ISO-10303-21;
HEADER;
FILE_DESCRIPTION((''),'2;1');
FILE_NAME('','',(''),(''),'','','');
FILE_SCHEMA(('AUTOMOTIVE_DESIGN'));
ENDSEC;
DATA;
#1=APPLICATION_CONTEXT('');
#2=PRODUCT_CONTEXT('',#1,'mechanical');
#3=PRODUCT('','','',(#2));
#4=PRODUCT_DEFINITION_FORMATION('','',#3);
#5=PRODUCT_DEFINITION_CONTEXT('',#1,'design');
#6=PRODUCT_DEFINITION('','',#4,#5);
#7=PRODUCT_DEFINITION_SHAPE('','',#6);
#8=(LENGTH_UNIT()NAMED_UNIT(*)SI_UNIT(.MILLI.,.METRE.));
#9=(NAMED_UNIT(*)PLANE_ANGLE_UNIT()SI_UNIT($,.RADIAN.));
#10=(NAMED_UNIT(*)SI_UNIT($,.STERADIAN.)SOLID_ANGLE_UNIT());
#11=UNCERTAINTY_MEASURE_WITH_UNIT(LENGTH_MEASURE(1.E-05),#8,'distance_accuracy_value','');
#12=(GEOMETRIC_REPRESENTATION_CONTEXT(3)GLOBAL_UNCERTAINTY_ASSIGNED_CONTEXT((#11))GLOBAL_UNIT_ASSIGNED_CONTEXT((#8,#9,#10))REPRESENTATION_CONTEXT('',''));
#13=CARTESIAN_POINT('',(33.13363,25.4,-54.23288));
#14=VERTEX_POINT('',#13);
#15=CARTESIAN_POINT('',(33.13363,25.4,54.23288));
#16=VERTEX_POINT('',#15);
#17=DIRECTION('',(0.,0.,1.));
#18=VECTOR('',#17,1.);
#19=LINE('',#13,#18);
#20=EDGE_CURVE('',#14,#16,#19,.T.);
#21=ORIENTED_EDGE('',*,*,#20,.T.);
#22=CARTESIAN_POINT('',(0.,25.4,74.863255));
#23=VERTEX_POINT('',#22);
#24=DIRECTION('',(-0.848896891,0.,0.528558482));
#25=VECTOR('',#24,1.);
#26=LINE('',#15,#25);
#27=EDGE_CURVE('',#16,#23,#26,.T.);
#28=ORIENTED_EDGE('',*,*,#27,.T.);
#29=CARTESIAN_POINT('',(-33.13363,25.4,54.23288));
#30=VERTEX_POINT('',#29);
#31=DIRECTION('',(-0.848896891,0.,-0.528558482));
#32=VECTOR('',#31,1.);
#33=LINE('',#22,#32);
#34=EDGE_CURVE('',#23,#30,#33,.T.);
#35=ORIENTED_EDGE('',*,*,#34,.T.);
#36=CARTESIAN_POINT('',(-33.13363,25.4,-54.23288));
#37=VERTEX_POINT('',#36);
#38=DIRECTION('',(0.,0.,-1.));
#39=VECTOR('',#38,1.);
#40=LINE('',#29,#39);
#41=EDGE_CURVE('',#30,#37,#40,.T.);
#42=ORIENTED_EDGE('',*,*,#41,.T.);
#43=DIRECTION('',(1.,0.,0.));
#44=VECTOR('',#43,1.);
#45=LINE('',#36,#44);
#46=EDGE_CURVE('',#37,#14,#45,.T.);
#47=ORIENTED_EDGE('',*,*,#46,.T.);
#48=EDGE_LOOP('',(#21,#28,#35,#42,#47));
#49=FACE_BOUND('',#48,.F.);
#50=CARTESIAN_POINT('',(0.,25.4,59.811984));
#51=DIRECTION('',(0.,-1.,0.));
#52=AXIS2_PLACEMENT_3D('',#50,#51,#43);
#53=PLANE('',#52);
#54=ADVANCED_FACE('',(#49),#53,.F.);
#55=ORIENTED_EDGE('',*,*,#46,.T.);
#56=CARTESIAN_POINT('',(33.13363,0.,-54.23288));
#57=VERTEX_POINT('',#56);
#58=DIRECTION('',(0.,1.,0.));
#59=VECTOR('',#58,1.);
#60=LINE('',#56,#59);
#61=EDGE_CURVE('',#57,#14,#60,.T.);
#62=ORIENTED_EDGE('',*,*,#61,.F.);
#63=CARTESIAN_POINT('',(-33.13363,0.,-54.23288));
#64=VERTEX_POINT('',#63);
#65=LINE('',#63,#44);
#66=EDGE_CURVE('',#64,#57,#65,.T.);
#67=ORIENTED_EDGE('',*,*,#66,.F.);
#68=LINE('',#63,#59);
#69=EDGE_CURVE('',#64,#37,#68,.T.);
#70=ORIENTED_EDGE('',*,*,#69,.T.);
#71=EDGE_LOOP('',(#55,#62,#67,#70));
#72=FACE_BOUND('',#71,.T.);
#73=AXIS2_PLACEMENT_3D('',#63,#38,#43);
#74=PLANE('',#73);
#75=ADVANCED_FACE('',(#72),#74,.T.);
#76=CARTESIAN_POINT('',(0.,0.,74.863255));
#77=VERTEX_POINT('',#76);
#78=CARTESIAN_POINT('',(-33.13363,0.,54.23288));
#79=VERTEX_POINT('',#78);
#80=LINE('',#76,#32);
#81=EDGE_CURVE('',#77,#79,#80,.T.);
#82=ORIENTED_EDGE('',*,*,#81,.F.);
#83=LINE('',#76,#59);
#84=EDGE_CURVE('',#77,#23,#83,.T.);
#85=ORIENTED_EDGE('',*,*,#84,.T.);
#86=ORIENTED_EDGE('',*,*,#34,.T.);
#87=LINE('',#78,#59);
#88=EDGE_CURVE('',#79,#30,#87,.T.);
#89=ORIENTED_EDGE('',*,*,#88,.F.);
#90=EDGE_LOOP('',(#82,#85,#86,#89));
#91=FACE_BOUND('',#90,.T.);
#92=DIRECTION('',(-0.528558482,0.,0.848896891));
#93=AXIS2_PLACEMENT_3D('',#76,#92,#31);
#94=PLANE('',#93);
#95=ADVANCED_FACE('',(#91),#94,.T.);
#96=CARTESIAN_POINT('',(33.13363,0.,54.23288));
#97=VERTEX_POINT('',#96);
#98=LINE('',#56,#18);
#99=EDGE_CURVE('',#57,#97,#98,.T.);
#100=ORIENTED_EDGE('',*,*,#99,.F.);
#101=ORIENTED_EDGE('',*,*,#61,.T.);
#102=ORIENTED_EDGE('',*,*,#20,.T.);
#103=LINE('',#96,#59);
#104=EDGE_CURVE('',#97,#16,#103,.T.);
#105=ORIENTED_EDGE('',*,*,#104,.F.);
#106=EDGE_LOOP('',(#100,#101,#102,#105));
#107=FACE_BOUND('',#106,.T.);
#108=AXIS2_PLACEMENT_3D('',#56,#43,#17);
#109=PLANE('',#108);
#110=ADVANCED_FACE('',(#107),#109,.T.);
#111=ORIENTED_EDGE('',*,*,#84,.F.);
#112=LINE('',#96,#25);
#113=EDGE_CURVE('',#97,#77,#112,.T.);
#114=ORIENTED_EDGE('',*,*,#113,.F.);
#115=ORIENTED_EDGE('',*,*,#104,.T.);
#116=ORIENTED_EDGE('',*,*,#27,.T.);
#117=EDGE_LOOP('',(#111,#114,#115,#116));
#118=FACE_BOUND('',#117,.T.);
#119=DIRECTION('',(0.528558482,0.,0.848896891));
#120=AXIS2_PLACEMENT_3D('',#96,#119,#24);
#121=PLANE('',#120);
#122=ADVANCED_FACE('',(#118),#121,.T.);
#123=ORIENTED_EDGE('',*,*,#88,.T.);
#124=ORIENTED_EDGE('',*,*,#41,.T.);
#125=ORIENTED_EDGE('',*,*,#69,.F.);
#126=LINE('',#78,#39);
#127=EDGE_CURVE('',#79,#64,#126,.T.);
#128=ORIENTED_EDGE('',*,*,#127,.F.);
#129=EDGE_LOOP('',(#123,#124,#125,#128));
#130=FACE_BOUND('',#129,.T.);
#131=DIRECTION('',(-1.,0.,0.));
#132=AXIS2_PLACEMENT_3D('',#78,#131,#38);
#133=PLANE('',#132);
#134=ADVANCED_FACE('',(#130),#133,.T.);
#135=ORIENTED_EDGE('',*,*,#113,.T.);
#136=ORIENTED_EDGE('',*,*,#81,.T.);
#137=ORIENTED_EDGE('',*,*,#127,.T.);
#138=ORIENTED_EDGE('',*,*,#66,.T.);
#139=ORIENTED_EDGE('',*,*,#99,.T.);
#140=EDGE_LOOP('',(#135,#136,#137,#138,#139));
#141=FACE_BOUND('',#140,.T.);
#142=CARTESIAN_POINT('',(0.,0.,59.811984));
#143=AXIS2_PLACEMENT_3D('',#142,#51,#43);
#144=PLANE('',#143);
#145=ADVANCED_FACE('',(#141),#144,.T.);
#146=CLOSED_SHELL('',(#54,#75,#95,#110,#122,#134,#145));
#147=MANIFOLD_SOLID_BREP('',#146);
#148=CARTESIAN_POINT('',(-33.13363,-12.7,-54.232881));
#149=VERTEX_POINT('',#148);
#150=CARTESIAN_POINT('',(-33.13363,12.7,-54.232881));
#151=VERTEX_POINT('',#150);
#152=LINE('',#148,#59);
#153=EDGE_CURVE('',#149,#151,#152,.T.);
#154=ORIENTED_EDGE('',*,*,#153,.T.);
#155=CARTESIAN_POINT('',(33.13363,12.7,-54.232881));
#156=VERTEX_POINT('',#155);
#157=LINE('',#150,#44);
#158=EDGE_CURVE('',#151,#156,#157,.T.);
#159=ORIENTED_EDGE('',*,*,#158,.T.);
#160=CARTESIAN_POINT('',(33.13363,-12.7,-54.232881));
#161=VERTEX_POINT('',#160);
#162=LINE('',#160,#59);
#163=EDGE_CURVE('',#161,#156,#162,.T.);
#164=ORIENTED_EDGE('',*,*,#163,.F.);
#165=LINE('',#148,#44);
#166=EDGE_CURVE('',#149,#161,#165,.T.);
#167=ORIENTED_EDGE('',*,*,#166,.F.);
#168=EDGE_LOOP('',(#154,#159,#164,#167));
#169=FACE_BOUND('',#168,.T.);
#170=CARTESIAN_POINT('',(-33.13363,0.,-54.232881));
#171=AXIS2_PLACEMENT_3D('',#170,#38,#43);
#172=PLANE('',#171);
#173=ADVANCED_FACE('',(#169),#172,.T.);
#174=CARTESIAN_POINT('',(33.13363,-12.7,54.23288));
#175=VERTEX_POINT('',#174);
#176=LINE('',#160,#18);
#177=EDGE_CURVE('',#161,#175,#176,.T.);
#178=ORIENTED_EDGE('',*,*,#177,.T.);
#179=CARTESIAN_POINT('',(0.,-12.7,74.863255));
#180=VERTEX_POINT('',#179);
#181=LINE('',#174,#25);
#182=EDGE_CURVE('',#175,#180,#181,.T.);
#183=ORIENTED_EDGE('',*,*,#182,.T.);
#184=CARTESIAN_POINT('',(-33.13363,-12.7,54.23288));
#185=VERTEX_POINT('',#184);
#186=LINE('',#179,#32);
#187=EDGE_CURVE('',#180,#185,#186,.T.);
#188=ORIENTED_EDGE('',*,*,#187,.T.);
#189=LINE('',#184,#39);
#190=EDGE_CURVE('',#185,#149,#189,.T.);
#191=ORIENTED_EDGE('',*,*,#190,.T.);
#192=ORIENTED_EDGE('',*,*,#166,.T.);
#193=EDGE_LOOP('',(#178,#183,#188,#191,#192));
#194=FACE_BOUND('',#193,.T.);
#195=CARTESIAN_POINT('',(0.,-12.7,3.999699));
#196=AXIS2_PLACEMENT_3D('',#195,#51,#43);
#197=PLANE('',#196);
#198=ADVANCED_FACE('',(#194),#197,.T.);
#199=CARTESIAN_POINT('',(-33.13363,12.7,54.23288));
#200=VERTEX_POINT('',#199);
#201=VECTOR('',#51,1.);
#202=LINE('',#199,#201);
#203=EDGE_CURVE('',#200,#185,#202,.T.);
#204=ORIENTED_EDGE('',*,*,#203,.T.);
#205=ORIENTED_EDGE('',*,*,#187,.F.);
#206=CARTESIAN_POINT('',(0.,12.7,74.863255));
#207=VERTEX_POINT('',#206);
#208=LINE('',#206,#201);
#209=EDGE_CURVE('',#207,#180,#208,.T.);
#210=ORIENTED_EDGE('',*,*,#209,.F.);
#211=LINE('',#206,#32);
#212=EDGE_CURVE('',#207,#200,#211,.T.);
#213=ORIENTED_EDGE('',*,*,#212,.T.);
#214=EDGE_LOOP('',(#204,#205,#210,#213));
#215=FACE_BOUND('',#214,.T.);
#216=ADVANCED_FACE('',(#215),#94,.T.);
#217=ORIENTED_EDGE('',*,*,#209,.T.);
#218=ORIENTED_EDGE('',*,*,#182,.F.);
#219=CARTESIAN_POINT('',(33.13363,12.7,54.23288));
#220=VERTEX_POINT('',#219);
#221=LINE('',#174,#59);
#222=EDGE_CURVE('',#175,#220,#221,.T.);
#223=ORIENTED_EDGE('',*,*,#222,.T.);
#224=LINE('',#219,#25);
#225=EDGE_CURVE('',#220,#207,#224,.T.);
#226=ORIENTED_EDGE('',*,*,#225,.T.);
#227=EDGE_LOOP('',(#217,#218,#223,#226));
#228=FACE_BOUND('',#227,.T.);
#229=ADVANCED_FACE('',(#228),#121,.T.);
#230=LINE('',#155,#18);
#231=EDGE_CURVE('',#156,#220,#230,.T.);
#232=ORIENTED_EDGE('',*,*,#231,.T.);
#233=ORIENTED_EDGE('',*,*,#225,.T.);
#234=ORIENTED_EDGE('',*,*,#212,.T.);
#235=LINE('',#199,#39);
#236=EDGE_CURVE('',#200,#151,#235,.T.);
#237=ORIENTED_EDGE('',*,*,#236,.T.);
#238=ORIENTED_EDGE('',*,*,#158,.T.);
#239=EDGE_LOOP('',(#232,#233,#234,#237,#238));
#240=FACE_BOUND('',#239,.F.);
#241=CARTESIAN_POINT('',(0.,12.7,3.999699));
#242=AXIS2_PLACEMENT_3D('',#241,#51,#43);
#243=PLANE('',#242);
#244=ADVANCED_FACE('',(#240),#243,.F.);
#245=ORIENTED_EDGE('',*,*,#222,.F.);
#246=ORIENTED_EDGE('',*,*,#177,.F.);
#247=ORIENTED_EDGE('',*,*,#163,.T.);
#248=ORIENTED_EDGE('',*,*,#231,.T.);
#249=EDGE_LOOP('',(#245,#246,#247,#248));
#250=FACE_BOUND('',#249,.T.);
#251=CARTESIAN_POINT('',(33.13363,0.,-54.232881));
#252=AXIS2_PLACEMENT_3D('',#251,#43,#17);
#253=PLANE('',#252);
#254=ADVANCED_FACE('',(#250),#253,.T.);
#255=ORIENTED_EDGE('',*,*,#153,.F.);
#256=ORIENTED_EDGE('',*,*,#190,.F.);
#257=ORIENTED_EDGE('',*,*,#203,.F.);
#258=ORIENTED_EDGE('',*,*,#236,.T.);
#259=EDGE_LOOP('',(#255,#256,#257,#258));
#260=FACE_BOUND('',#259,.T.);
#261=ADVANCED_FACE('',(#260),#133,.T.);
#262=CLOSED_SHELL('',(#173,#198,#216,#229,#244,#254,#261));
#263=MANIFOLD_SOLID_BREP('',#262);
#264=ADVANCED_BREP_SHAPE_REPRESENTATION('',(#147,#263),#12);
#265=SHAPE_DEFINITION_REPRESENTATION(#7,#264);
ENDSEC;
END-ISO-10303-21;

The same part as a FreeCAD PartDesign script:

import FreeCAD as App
import Part
import Sketcher
from FreeCAD import Vector


def add_polygon(sketch, points):
    """Adds a closed chain of lines whose ends are joined by coincident constraints."""
    first, n = sketch.GeometryCount, len(points)
    for a, b in zip(points, points[1:] + points[:1]):
        sketch.addGeometry(Part.LineSegment(App.Vector(*a, 0), App.Vector(*b, 0)), False)
    for i in range(n):
        sketch.addConstraint(Sketcher.Constraint("Coincident", first + i, 2, first + (i + 1) % n, 1))

doc = App.newDocument("Part")
params = doc.addObject("Spreadsheet::Sheet", "Params")
for row, (alias, value) in enumerate([
    ("pad1_length", "1 in"),
    ("pad2_length", "1 in"),
], start=1):
    params.set(f"A{row}", alias)
    params.set(f"B{row}", "=" + value)
    params.setAlias(f"B{row}", alias)

body = doc.addObject("PartDesign::Body", "Body")

# Sketch on XZ plane
sketch1 = body.newObject("Sketcher::SketchObject", "Sketch")
sketch1.AttachmentSupport = (doc.getObject("XZ_Plane"), [""])
sketch1.MapMode = "FlatFace"
add_polygon(sketch1, [(33.13363, 54.23288), (0, 74.863255), (-33.13363, 54.23288), (-33.13363, -54.23288), (33.13363, -54.23288)])  # lines 0-4
sketch1.addConstraint([
    Sketcher.Constraint("Vertical", 2),
    Sketcher.Constraint("Horizontal", 3),
    Sketcher.Constraint("Vertical", 4),
    Sketcher.Constraint("Symmetric", 1, 2, 3, 2, -1, 1),
    Sketcher.Constraint("PointOnObject", 0, 2, -2),
    Sketcher.Constraint("Horizontal", 1, 2, 4, 2),
    Sketcher.Constraint("DistanceX", 3, 1, 3, 2, 66.26726),
    Sketcher.Constraint("DistanceY", 2, 2, 2, 1, 108.46576),
    Sketcher.Constraint("Distance", 0, 39.031395),
])
pad1 = body.newObject("PartDesign::Pad", "Pad")
pad1.Profile = sketch1
pad1.setExpression("Length", "Params.pad1_length")
pad1.Reversed = True
body2 = doc.addObject("PartDesign::Body", "Body001")

# Sketch on XZ plane
sketch2 = body2.newObject("Sketcher::SketchObject", "Sketch001")
sketch2.AttachmentSupport = (doc.getObject("XZ_Plane001"), [""])
sketch2.MapMode = "FlatFace"
add_polygon(sketch2, [(33.13363, 54.23288), (0, 74.863255), (-33.13363, 54.23288), (-33.13363, -54.232881), (33.13363, -54.232881)])  # lines 0-4
sketch2.addConstraint([
    Sketcher.Constraint("Vertical", 2),
    Sketcher.Constraint("Horizontal", 3),
    Sketcher.Constraint("Vertical", 4),
    Sketcher.Constraint("Symmetric", 1, 2, 3, 2, -1, 1),
    Sketcher.Constraint("PointOnObject", 0, 2, -2),
    Sketcher.Constraint("Horizontal", 1, 2, 4, 2),
    Sketcher.Constraint("DistanceX", 3, 1, 3, 2, 66.26726),
    Sketcher.Constraint("DistanceY", 2, 2, 2, 1, 108.465761),
    Sketcher.Constraint("Distance", 0, 39.031395),
])
pad2 = body2.newObject("PartDesign::Pad", "Pad001")
pad2.Profile = sketch2
pad2.setExpression("Length", "Params.pad2_length")
pad2.Midplane = True

doc.recompute()
